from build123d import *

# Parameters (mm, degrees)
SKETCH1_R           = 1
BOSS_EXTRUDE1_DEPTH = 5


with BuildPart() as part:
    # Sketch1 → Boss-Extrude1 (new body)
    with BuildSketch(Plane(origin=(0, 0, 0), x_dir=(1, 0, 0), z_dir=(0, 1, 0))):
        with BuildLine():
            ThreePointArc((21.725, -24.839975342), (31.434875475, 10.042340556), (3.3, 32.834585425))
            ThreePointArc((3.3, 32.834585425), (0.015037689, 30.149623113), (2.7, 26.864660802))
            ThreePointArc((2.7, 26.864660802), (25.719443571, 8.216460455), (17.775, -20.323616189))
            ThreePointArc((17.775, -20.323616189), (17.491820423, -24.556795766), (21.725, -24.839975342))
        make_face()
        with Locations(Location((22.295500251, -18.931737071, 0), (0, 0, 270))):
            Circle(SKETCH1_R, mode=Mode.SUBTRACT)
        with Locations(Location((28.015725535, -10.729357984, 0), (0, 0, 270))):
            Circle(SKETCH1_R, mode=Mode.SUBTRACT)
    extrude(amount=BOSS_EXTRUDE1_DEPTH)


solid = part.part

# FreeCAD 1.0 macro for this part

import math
import FreeCAD as App
import Part
import Sketcher
from FreeCAD import Vector
Q = App.Units.Quantity

doc = App.newDocument("Part")
body = doc.addObject("PartDesign::Body", "Body")

# Sketch on XZ plane
sketch1 = body.newObject("Sketcher::SketchObject", "Sketch")
sketch1.AttachmentSupport = (doc.getObject("XZ_Plane"), [""])
sketch1.MapMode = "FlatFace"
sketch1.addGeometry([
    Part.ArcOfCircle(Part.Circle(Vector(0, 0, 0), Vector(0, 0, 1), 33), math.radians(-84), math.radians(49)),  # 0
    Part.ArcOfCircle(Part.Circle(Vector(3, -29.8, 0), Vector(0, 0, 1), 3), math.radians(96), math.radians(276)),  # 1
    Part.ArcOfCircle(Part.Circle(Vector(0, 0, 0), Vector(0, 0, 1), 27), math.radians(-84), math.radians(49)),  # 2
    Part.ArcOfCircle(Part.Circle(Vector(19.7, 22.6, 0), Vector(0, 0, 1), 3), math.radians(49), math.radians(229)),  # 3
    Part.Circle(Vector(22.3, 18.9, 0), Vector(0, 0, 1), 1),  # 4
    Part.Circle(Vector(28, 10.7, 0), Vector(0, 0, 1), 1),  # 5
], False)
sketch1.addConstraint([
    Sketcher.Constraint("Tangent", 0, 1, 1, 2),
    Sketcher.Constraint("Tangent", 1, 1, 2, 1),
    Sketcher.Constraint("Tangent", 2, 2, 3, 2),
    Sketcher.Constraint("Tangent", 3, 1, 0, 2),
    Sketcher.Constraint("Coincident", 0, 3, -1, 1),
    Sketcher.Constraint("Coincident", 2, 3, -1, 1),
    Sketcher.Constraint("Equal", 4, 5),
    Sketcher.Constraint("Diameter", 4, Q("2 mm")),
    Sketcher.Constraint("Radius", 0, Q("33 mm")),
    Sketcher.Constraint("Radius", 1, Q("3 mm")),
    Sketcher.Constraint("DistanceX", -1, 1, 1, 3, Q("3 mm")),
    Sketcher.Constraint("DistanceX", -1, 1, 3, 3, Q("19.75 mm")),
    Sketcher.Constraint("DistanceX", -1, 1, 4, 3, Q("22.2955 mm")),
    Sketcher.Constraint("DistanceY", 4, 3, 3, 3, Q("3.650059 mm")),
    Sketcher.Constraint("DistanceY", 5, 3, 4, 3, Q("8.202379 mm")),
    Sketcher.Constraint("DistanceX", -1, 1, 5, 3, Q("28.015726 mm")),
])
pad1 = body.newObject("PartDesign::Pad", "Pad")
pad1.Profile = sketch1
pad1.Length = 5
pad1.Reversed = True

doc.recompute()
